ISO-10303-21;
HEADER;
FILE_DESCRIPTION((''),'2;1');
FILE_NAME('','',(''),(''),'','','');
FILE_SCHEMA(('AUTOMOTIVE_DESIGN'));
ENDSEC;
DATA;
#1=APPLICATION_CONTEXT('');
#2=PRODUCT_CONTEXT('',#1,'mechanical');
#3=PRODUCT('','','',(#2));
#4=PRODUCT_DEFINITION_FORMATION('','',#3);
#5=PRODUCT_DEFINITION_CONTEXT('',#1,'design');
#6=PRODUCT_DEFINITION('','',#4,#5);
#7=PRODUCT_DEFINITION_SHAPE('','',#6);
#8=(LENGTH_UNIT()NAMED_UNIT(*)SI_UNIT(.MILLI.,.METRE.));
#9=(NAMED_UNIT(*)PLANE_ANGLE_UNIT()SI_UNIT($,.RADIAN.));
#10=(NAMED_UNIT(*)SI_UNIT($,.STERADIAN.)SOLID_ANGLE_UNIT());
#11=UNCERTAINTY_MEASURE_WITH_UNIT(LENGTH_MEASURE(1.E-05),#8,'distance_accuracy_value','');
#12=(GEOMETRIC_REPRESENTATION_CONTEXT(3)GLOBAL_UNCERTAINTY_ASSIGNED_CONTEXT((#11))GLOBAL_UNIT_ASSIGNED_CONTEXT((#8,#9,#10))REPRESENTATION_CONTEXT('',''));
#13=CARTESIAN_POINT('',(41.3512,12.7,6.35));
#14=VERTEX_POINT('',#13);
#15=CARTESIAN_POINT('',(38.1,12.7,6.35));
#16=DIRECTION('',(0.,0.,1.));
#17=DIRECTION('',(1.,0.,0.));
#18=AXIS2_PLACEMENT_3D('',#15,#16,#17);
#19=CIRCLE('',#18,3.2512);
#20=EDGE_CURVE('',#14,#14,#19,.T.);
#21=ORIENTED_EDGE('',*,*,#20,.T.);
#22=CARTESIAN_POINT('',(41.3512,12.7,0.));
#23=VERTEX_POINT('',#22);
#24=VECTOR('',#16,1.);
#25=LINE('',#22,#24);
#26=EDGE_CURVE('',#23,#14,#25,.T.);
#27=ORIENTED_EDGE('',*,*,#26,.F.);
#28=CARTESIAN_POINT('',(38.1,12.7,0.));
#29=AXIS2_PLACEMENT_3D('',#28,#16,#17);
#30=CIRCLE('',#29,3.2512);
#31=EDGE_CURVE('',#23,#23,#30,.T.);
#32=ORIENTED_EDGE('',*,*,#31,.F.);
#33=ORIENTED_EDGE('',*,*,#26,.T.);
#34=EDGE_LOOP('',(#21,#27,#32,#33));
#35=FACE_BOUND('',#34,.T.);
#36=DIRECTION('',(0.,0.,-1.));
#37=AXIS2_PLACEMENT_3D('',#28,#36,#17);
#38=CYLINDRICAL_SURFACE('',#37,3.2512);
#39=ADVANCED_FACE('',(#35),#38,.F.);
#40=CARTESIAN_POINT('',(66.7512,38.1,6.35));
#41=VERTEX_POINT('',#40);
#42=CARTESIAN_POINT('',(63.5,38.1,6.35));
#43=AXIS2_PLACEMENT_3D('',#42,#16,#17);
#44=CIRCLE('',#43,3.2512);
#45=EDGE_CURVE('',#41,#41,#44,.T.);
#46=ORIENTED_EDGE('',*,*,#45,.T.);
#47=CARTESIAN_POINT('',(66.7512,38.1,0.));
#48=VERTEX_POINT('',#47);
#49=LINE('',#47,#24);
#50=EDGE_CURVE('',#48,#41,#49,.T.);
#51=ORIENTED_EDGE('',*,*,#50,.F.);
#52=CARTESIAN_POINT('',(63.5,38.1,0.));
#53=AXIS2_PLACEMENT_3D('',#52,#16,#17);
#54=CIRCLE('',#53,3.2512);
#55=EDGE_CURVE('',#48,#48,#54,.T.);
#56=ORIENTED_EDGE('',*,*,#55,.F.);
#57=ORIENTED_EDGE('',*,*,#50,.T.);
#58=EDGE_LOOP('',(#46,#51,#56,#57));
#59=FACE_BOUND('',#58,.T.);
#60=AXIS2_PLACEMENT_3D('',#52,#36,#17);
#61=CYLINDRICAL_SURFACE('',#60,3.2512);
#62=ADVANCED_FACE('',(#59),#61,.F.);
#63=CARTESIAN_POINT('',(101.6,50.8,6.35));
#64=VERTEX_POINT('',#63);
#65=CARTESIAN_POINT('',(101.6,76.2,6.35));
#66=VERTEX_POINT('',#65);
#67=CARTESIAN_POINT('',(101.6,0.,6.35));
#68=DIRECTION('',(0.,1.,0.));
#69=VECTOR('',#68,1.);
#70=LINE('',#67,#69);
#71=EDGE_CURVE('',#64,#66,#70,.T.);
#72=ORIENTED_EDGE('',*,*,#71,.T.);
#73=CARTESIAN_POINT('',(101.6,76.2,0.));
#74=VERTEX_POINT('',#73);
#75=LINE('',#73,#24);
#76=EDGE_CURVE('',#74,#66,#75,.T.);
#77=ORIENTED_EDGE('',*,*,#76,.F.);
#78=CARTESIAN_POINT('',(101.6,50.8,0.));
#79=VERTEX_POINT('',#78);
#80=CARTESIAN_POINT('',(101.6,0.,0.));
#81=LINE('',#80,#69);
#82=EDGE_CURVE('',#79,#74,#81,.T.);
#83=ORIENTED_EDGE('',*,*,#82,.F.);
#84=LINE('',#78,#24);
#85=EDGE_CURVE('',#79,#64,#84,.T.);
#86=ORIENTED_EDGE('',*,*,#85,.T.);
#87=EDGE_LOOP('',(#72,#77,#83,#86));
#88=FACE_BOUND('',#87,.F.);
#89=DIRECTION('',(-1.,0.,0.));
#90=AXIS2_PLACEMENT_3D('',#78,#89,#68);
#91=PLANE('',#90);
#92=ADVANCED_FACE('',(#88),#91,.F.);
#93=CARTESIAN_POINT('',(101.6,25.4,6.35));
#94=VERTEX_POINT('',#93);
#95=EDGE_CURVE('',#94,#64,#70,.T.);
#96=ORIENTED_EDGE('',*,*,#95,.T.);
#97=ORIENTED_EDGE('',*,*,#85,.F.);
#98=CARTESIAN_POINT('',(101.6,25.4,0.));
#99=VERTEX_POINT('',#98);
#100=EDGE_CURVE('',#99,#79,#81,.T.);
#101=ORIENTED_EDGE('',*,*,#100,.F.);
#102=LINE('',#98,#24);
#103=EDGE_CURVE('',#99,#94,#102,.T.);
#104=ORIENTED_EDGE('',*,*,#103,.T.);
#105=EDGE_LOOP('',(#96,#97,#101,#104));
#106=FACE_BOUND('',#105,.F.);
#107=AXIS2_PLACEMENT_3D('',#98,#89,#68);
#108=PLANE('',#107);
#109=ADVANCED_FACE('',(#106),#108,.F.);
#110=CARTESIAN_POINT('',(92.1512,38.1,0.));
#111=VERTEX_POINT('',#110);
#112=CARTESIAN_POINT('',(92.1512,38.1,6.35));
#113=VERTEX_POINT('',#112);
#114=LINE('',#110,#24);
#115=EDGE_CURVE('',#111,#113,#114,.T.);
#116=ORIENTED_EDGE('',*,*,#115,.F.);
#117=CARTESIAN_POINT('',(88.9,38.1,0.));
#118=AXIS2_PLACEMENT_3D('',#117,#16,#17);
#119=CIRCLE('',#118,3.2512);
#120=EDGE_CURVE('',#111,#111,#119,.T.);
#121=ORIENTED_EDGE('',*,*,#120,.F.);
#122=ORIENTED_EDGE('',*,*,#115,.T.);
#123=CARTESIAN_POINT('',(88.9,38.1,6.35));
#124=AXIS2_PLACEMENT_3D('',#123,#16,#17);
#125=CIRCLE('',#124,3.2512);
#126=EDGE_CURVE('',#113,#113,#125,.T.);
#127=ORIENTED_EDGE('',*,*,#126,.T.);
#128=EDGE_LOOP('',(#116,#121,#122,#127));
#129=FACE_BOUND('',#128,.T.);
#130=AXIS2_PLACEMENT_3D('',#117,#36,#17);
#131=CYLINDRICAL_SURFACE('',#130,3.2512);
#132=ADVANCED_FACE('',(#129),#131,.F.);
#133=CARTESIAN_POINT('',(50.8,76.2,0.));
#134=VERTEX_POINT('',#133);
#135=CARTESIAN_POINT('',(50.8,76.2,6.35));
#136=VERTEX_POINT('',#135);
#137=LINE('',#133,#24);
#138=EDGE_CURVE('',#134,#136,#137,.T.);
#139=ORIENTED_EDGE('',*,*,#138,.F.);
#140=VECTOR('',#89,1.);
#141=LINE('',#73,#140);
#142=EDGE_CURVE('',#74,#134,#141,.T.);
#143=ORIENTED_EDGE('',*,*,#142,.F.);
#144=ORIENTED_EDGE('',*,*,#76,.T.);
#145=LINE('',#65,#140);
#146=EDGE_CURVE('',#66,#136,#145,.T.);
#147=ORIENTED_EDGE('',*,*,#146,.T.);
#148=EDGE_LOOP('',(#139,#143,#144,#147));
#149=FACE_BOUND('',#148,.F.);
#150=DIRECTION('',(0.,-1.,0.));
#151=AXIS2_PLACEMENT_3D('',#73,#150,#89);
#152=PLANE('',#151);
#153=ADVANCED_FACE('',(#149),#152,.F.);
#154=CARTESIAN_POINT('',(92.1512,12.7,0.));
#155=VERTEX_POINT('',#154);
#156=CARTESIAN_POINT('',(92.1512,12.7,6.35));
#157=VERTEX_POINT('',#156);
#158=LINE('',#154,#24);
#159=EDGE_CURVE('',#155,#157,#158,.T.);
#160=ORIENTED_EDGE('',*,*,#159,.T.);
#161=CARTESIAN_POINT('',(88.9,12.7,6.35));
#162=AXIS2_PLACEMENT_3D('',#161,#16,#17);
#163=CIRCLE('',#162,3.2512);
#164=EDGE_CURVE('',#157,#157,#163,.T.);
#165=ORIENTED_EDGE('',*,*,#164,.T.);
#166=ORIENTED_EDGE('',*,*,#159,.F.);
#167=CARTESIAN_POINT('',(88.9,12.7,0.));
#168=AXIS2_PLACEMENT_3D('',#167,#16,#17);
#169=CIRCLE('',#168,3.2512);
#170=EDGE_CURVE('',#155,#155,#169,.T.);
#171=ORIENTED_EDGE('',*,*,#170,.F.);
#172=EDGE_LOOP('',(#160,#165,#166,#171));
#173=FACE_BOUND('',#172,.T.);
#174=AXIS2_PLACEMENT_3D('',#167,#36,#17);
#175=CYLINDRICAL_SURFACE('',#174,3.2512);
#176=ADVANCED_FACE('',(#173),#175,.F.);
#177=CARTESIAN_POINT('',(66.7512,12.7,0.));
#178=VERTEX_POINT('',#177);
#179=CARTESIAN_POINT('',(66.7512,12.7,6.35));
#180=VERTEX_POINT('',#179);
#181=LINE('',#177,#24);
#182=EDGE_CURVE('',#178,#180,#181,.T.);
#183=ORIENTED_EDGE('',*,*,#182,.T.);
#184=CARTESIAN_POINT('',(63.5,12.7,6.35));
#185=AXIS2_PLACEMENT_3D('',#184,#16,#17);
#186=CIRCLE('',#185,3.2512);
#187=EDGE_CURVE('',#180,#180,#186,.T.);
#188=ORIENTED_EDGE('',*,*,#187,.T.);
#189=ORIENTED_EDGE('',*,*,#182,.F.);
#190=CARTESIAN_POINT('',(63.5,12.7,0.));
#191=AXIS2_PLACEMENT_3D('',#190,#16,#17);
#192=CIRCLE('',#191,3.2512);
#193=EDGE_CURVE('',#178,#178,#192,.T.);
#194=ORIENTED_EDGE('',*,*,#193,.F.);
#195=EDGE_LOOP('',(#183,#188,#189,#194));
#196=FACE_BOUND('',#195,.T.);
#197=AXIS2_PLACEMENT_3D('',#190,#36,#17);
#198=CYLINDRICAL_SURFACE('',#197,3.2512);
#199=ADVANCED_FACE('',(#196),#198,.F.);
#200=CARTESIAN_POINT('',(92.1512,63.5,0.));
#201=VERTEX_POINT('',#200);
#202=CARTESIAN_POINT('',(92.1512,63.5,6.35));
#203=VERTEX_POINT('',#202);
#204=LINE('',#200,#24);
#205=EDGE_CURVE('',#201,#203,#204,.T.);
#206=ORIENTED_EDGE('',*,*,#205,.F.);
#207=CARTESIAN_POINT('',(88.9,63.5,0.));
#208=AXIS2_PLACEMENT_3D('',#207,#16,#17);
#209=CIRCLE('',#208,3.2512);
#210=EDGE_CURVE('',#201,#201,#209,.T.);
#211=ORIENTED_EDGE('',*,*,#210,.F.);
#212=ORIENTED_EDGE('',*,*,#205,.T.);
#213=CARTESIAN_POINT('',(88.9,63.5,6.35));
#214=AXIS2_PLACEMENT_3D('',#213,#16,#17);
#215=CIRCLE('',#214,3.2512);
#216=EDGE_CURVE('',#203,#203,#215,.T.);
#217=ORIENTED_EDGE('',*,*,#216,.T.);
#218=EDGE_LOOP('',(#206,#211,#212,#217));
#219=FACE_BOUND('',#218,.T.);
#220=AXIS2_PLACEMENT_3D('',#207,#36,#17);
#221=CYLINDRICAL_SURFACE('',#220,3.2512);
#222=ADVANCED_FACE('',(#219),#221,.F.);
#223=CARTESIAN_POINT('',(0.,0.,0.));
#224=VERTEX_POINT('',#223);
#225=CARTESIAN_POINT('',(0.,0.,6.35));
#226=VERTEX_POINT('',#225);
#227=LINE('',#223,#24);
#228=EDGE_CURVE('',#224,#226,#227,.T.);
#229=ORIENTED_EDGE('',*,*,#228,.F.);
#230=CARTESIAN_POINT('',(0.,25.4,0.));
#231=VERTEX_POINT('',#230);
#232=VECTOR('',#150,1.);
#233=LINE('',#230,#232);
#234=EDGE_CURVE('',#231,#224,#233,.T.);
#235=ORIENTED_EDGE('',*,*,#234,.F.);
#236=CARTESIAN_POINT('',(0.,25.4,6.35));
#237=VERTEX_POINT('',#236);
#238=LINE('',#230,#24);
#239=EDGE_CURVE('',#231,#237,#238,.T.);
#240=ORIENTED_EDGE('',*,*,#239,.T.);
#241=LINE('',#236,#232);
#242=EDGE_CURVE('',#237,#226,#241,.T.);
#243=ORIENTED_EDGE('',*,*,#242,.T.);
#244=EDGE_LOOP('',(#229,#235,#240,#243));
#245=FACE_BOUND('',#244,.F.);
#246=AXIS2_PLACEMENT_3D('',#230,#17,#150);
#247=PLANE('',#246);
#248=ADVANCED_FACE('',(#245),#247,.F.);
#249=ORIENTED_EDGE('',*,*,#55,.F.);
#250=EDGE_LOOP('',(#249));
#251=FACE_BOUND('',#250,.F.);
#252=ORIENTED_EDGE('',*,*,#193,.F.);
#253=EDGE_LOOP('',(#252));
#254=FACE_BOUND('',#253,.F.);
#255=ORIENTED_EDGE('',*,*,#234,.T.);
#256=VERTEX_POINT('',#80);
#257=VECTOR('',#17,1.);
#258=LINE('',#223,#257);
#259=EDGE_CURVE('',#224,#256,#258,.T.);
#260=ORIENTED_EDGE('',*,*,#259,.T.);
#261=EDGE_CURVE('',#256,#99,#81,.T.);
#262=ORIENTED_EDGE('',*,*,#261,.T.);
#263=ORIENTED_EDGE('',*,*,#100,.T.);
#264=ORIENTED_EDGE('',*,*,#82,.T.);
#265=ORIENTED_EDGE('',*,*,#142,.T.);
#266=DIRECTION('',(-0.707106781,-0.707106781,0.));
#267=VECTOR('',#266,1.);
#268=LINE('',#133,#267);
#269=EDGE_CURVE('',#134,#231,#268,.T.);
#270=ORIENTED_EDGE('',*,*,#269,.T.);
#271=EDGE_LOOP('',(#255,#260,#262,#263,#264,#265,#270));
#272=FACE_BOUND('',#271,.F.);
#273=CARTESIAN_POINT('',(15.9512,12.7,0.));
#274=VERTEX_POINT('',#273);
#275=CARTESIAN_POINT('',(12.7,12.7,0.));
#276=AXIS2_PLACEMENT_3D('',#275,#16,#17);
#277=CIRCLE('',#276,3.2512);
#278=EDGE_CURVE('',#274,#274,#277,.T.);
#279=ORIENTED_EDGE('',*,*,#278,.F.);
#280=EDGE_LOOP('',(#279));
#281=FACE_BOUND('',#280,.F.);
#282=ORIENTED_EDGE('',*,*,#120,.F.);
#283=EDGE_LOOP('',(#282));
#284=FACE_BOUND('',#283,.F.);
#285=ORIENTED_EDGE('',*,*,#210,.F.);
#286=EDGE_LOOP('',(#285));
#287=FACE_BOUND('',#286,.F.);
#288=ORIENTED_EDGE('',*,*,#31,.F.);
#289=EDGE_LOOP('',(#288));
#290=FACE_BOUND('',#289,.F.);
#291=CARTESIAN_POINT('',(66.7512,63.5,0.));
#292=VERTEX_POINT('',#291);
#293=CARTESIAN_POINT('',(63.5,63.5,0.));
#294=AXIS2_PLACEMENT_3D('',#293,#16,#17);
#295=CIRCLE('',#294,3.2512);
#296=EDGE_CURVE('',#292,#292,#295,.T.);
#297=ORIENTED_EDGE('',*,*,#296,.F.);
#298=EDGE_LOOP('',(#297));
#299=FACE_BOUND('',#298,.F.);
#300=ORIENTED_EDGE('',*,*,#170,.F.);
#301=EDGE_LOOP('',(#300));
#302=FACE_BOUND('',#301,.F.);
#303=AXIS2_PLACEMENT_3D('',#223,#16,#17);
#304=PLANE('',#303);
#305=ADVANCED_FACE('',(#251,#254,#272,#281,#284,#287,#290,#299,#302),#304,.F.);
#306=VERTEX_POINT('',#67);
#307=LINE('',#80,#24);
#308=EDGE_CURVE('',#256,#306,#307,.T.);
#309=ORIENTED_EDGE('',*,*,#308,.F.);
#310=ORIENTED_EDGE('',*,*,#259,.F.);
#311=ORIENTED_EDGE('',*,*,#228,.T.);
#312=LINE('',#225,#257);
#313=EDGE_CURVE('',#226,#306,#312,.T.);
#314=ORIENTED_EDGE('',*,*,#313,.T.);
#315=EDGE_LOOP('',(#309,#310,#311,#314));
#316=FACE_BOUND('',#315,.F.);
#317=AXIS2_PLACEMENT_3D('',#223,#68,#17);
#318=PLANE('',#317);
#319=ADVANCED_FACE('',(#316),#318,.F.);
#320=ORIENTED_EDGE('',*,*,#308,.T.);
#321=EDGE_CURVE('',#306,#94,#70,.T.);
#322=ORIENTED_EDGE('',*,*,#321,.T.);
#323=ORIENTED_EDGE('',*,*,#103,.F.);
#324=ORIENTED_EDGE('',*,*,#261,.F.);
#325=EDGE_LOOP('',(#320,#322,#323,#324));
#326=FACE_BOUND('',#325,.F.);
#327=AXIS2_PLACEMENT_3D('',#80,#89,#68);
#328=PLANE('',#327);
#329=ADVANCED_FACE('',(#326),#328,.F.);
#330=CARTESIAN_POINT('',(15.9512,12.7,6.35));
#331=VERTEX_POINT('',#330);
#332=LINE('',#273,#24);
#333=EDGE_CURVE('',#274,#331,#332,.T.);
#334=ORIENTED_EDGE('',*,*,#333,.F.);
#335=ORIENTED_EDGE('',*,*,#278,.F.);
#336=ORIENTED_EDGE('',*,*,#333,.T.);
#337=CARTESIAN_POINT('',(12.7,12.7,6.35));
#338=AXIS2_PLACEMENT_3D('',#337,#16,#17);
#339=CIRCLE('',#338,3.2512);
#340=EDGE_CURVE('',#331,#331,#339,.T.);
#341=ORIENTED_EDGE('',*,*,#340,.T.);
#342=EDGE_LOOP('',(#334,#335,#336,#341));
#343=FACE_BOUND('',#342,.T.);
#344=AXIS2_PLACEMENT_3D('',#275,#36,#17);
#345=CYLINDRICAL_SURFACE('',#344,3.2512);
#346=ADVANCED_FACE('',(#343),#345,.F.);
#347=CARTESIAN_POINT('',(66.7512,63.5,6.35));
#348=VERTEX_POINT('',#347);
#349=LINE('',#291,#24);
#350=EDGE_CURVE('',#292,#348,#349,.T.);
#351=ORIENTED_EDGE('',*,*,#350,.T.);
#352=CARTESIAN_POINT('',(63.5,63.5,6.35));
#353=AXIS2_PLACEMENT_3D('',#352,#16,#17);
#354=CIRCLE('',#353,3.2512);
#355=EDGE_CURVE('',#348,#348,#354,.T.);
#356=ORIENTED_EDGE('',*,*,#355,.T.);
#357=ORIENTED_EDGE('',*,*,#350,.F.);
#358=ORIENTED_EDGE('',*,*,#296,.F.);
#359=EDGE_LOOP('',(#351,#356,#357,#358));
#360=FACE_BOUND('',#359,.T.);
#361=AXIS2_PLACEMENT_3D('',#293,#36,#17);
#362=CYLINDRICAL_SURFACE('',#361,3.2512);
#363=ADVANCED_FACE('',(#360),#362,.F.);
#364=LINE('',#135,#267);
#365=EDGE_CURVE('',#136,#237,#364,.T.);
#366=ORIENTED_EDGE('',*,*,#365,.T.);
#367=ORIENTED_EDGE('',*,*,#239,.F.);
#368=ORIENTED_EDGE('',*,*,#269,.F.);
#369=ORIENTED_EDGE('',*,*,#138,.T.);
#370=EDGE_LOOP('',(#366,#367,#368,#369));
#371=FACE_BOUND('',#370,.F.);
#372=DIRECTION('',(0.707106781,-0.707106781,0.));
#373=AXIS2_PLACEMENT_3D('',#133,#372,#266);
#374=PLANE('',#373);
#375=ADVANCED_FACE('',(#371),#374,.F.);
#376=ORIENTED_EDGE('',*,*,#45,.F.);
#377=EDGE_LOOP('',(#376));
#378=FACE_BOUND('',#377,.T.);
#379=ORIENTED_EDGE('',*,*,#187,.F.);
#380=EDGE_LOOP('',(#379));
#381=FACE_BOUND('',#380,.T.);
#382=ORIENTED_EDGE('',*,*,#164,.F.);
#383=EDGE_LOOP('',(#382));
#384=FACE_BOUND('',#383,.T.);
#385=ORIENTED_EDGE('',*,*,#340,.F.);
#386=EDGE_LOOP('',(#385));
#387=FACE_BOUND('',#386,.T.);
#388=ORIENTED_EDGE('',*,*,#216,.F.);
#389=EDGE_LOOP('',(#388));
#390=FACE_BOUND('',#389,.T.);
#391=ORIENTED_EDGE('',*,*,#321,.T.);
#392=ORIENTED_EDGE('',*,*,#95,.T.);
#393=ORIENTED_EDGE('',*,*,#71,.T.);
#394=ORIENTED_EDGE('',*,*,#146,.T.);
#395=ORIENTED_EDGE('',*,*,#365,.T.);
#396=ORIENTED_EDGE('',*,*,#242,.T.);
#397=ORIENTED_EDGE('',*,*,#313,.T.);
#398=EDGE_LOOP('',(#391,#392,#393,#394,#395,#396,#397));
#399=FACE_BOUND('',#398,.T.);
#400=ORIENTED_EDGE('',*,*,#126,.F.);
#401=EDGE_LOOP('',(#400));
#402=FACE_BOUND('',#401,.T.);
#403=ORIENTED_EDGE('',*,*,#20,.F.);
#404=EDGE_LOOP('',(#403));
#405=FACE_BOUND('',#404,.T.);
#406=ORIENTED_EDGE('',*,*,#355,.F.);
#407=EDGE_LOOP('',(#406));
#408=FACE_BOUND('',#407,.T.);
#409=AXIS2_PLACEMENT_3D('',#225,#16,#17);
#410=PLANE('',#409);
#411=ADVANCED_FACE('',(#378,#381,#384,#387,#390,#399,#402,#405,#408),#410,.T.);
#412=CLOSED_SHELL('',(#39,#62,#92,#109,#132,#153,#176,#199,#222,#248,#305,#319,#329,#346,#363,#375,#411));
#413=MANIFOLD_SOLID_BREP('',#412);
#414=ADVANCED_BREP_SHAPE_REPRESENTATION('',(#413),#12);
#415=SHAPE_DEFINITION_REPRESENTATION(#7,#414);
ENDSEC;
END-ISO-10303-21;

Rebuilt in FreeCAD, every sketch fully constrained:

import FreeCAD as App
import Part
import Sketcher

V = App.Vector
Q = App.Units.Quantity

doc = App.newDocument("Part")
body = doc.addObject("PartDesign::Body", "Body")

# Sketch on XY plane
sketch1 = doc.addObject("Sketcher::SketchObject", "Sketch")
body.addObject(sketch1)
sketch1.AttachmentSupport = (doc.XY_Plane, [""])
sketch1.MapMode = "FlatFace"
sketch1.addGeometry(Part.LineSegment(V(0, 25.4, 0), V(0, 0, 0)), False)
sketch1.addGeometry(Part.LineSegment(V(0, 0, 0), V(101.6, 0, 0)), False)
sketch1.addGeometry(Part.LineSegment(V(101.6, 0, 0), V(101.6, 76.2, 0)), False)
sketch1.addGeometry(Part.LineSegment(V(101.6, 76.2, 0), V(50.8, 76.2, 0)), False)
sketch1.addGeometry(Part.LineSegment(V(50.8, 76.2, 0), V(0, 25.4, 0)), False)
sketch1.addGeometry(Part.Circle(V(12.7, 12.7, 0), V(0, 0, 1), 3.3), False)
sketch1.addGeometry(Part.Circle(V(38.1, 12.7, 0), V(0, 0, 1), 3.3), False)
sketch1.addGeometry(Part.Circle(V(63.5, 12.7, 0), V(0, 0, 1), 3.3), False)
sketch1.addGeometry(Part.Circle(V(88.9, 12.7, 0), V(0, 0, 1), 3.3), False)
sketch1.addGeometry(Part.Circle(V(63.5, 38.1, 0), V(0, 0, 1), 3.3), False)
sketch1.addGeometry(Part.Circle(V(88.9, 38.1, 0), V(0, 0, 1), 3.3), False)
sketch1.addGeometry(Part.Circle(V(63.5, 63.5, 0), V(0, 0, 1), 3.3), False)
sketch1.addGeometry(Part.Circle(V(88.9, 63.5, 0), V(0, 0, 1), 3.3), False)
sketch1.addConstraint(Sketcher.Constraint("Coincident", 0, 2, 1, 1))
sketch1.addConstraint(Sketcher.Constraint("Coincident", 1, 2, 2, 1))
sketch1.addConstraint(Sketcher.Constraint("Coincident", 2, 2, 3, 1))
sketch1.addConstraint(Sketcher.Constraint("Coincident", 3, 2, 4, 1))
sketch1.addConstraint(Sketcher.Constraint("Coincident", 4, 2, 0, 1))
sketch1.addConstraint(Sketcher.Constraint("Vertical", 0))
sketch1.addConstraint(Sketcher.Constraint("Horizontal", 1))
sketch1.addConstraint(Sketcher.Constraint("Vertical", 2))
sketch1.addConstraint(Sketcher.Constraint("Horizontal", 3))
sketch1.addConstraint(Sketcher.Constraint("Coincident", 0, 2, -1, 1))
sketch1.addConstraint(Sketcher.Constraint("Equal", 5, 6))
sketch1.addConstraint(Sketcher.Constraint("Equal", 6, 7))
sketch1.addConstraint(Sketcher.Constraint("Equal", 7, 8))
sketch1.addConstraint(Sketcher.Constraint("Equal", 8, 9))
sketch1.addConstraint(Sketcher.Constraint("Equal", 9, 10))
sketch1.addConstraint(Sketcher.Constraint("Equal", 10, 11))
sketch1.addConstraint(Sketcher.Constraint("Equal", 11, 12))
sketch1.addConstraint(Sketcher.Constraint("Horizontal", 5, 3, 6, 3))
sketch1.addConstraint(Sketcher.Constraint("Horizontal", 6, 3, 7, 3))
sketch1.addConstraint(Sketcher.Constraint("Horizontal", 7, 3, 8, 3))
sketch1.addConstraint(Sketcher.Constraint("Horizontal", 9, 3, 10, 3))
sketch1.addConstraint(Sketcher.Constraint("Horizontal", 11, 3, 12, 3))
sketch1.addConstraint(Sketcher.Constraint("Vertical", 7, 3, 9, 3))
sketch1.addConstraint(Sketcher.Constraint("Vertical", 8, 3, 10, 3))
sketch1.addConstraint(Sketcher.Constraint("Vertical", 9, 3, 11, 3))
sketch1.addConstraint(Sketcher.Constraint("Vertical", 10, 3, 12, 3))
sketch1.addConstraint(Sketcher.Constraint("DistanceX", 1, 1, 1, 2, Q("4 in")))
sketch1.addConstraint(Sketcher.Constraint("DistanceX", 3, 2, 3, 1, Q("2 in")))
sketch1.addConstraint(Sketcher.Constraint("DistanceY", 0, 2, 0, 1, Q("1 in")))
sketch1.addConstraint(Sketcher.Constraint("DistanceY", 2, 1, 2, 2, Q("3 in")))
sketch1.addConstraint(Sketcher.Constraint("Diameter", 5, Q("0.256 in")))
sketch1.addConstraint(Sketcher.Constraint("DistanceX", 5, 3, 6, 3, Q("1 in")))
sketch1.addConstraint(Sketcher.Constraint("DistanceX", 6, 3, 7, 3, Q("1 in")))
sketch1.addConstraint(Sketcher.Constraint("DistanceX", 7, 3, 8, 3, Q("1 in")))
sketch1.addConstraint(Sketcher.Constraint("DistanceY", 7, 3, 9, 3, Q("1 in")))
sketch1.addConstraint(Sketcher.Constraint("DistanceY", 9, 3, 11, 3, Q("1 in")))
sketch1.addConstraint(Sketcher.Constraint("DistanceX", -1, 1, 5, 3, Q("0.5 in")))
sketch1.addConstraint(Sketcher.Constraint("DistanceY", -1, 1, 5, 3, Q("0.5 in")))
pad1 = doc.addObject("PartDesign::Pad", "Pad")
body.addObject(pad1)
pad1.Profile = sketch1
pad1.Length = Q("0.25 in")

doc.recompute()
